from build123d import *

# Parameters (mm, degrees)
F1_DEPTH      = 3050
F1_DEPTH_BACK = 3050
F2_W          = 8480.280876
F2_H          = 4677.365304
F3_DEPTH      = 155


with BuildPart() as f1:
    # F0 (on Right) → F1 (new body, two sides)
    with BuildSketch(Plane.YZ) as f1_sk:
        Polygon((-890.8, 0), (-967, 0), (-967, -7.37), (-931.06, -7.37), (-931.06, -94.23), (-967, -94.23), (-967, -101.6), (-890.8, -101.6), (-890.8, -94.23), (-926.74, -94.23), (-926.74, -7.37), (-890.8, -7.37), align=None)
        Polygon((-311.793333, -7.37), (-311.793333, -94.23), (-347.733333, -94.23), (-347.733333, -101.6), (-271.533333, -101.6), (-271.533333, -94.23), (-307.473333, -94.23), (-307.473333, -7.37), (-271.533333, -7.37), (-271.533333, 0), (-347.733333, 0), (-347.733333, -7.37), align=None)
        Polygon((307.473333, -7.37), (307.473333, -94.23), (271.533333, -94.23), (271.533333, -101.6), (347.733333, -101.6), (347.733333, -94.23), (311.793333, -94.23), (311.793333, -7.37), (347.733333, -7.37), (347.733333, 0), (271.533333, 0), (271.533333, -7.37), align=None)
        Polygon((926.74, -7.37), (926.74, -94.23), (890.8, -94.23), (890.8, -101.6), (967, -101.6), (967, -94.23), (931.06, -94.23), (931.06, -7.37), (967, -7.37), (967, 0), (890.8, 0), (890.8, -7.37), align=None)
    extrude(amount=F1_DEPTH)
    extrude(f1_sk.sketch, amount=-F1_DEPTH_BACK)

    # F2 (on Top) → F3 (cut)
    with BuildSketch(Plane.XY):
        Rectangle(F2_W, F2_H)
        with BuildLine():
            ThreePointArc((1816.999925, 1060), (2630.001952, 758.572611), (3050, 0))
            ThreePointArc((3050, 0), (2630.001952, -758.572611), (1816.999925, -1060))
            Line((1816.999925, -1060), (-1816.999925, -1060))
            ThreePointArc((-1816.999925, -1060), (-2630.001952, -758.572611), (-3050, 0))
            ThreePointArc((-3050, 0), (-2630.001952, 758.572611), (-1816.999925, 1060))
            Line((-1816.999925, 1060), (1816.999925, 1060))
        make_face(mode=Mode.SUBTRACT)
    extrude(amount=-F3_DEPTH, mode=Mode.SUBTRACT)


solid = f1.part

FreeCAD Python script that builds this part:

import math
import FreeCAD as App
import Part
import Sketcher

V = App.Vector
Q = App.Units.Quantity

doc = App.newDocument("Part")
params = doc.addObject("Spreadsheet::Sheet", "Params")
for row, (alias, value) in enumerate([
    ("sketch1_width", "76.2 mm"),
    ("sketch1_width2", "35.94 mm"),
    ("sketch1_height", "7.37 mm"),
    ("sketch1_height2", "86.86 mm"),
    ("pad1_length", "3050 mm"),
    ("pad1_length2", "3050 mm"),
    ("pocket1_length", "155 mm"),
], start=1):
    params.set(f"A{row}", alias)
    params.set(f"B{row}", "=" + value)
    params.setAlias(f"B{row}", alias)

body = doc.addObject("PartDesign::Body", "Body")
body.AllowCompound = True

sketch1 = body.newObject("Sketcher::SketchObject", "Sketch")
sketch1.AttachmentSupport = (doc.getObject("YZ_Plane"), [""])
sketch1.MapMode = "FlatFace"
sketch1.addGeometry([
    Part.LineSegment(V(-890.8, 0, 0), V(-967, 0, 0)),
    Part.LineSegment(V(-967, 0, 0), V(-967, -7.37, 0)),
    Part.LineSegment(V(-967, -7.37, 0), V(-931.06, -7.37, 0)),
    Part.LineSegment(V(-931.06, -7.37, 0), V(-931.06, -94.23, 0)),
    Part.LineSegment(V(-931.06, -94.23, 0), V(-967, -94.23, 0)),
    Part.LineSegment(V(-967, -94.23, 0), V(-967, -101.6, 0)),
    Part.LineSegment(V(-967, -101.6, 0), V(-890.8, -101.6, 0)),
    Part.LineSegment(V(-890.8, -101.6, 0), V(-890.8, -94.23, 0)),
    Part.LineSegment(V(-890.8, -94.23, 0), V(-926.74, -94.23, 0)),
    Part.LineSegment(V(-926.74, -94.23, 0), V(-926.74, -7.37, 0)),
    Part.LineSegment(V(-926.74, -7.37, 0), V(-890.8, -7.37, 0)),
    Part.LineSegment(V(-890.8, -7.37, 0), V(-890.8, 0, 0)),
    Part.LineSegment(V(-311.793333, -7.37, 0), V(-311.793333, -94.23, 0)),
    Part.LineSegment(V(-311.793333, -94.23, 0), V(-347.733333, -94.23, 0)),
    Part.LineSegment(V(-347.733333, -94.23, 0), V(-347.733333, -101.6, 0)),
    Part.LineSegment(V(-347.733333, -101.6, 0), V(-271.533333, -101.6, 0)),
    Part.LineSegment(V(-271.533333, -101.6, 0), V(-271.533333, -94.23, 0)),
    Part.LineSegment(V(-271.533333, -94.23, 0), V(-307.473333, -94.23, 0)),
    Part.LineSegment(V(-307.473333, -94.23, 0), V(-307.473333, -7.37, 0)),
    Part.LineSegment(V(-307.473333, -7.37, 0), V(-271.533333, -7.37, 0)),
    Part.LineSegment(V(-271.533333, -7.37, 0), V(-271.533333, 0, 0)),
    Part.LineSegment(V(-271.533333, 0, 0), V(-347.733333, 0, 0)),
    Part.LineSegment(V(-347.733333, 0, 0), V(-347.733333, -7.37, 0)),
    Part.LineSegment(V(-347.733333, -7.37, 0), V(-311.793333, -7.37, 0)),
    Part.LineSegment(V(307.473333, -7.37, 0), V(307.473333, -94.23, 0)),
    Part.LineSegment(V(307.473333, -94.23, 0), V(271.533333, -94.23, 0)),
    Part.LineSegment(V(271.533333, -94.23, 0), V(271.533333, -101.6, 0)),
    Part.LineSegment(V(271.533333, -101.6, 0), V(347.733333, -101.6, 0)),
    Part.LineSegment(V(347.733333, -101.6, 0), V(347.733333, -94.23, 0)),
    Part.LineSegment(V(347.733333, -94.23, 0), V(311.793333, -94.23, 0)),
    Part.LineSegment(V(311.793333, -94.23, 0), V(311.793333, -7.37, 0)),
    Part.LineSegment(V(311.793333, -7.37, 0), V(347.733333, -7.37, 0)),
    Part.LineSegment(V(347.733333, -7.37, 0), V(347.733333, 0, 0)),
    Part.LineSegment(V(347.733333, 0, 0), V(271.533333, 0, 0)),
    Part.LineSegment(V(271.533333, 0, 0), V(271.533333, -7.37, 0)),
    Part.LineSegment(V(271.533333, -7.37, 0), V(307.473333, -7.37, 0)),
    Part.LineSegment(V(926.74, -7.37, 0), V(926.74, -94.23, 0)),
    Part.LineSegment(V(926.74, -94.23, 0), V(890.8, -94.23, 0)),
    Part.LineSegment(V(890.8, -94.23, 0), V(890.8, -101.6, 0)),
    Part.LineSegment(V(890.8, -101.6, 0), V(967, -101.6, 0)),
    Part.LineSegment(V(967, -101.6, 0), V(967, -94.23, 0)),
    Part.LineSegment(V(967, -94.23, 0), V(931.06, -94.23, 0)),
    Part.LineSegment(V(931.06, -94.23, 0), V(931.06, -7.37, 0)),
    Part.LineSegment(V(931.06, -7.37, 0), V(967, -7.37, 0)),
    Part.LineSegment(V(967, -7.37, 0), V(967, 0, 0)),
    Part.LineSegment(V(967, 0, 0), V(890.8, 0, 0)),
    Part.LineSegment(V(890.8, 0, 0), V(890.8, -7.37, 0)),
    Part.LineSegment(V(890.8, -7.37, 0), V(926.74, -7.37, 0)),
], False)
sketch1.addConstraint([
    Sketcher.Constraint("Coincident", 0, 2, 1, 1),
    Sketcher.Constraint("Coincident", 1, 2, 2, 1),
    Sketcher.Constraint("Coincident", 2, 2, 3, 1),
    Sketcher.Constraint("Coincident", 3, 2, 4, 1),
    Sketcher.Constraint("Coincident", 4, 2, 5, 1),
    Sketcher.Constraint("Coincident", 5, 2, 6, 1),
    Sketcher.Constraint("Coincident", 6, 2, 7, 1),
    Sketcher.Constraint("Coincident", 7, 2, 8, 1),
    Sketcher.Constraint("Coincident", 8, 2, 9, 1),
    Sketcher.Constraint("Coincident", 9, 2, 10, 1),
    Sketcher.Constraint("Coincident", 10, 2, 11, 1),
    Sketcher.Constraint("Coincident", 11, 2, 0, 1),
    Sketcher.Constraint("Coincident", 12, 2, 13, 1),
    Sketcher.Constraint("Coincident", 13, 2, 14, 1),
    Sketcher.Constraint("Coincident", 14, 2, 15, 1),
    Sketcher.Constraint("Coincident", 15, 2, 16, 1),
    Sketcher.Constraint("Coincident", 16, 2, 17, 1),
    Sketcher.Constraint("Coincident", 17, 2, 18, 1),
    Sketcher.Constraint("Coincident", 18, 2, 19, 1),
    Sketcher.Constraint("Coincident", 19, 2, 20, 1),
    Sketcher.Constraint("Coincident", 20, 2, 21, 1),
    Sketcher.Constraint("Coincident", 21, 2, 22, 1),
    Sketcher.Constraint("Coincident", 22, 2, 23, 1),
    Sketcher.Constraint("Coincident", 23, 2, 12, 1),
    Sketcher.Constraint("Coincident", 24, 2, 25, 1),
    Sketcher.Constraint("Coincident", 25, 2, 26, 1),
    Sketcher.Constraint("Coincident", 26, 2, 27, 1),
    Sketcher.Constraint("Coincident", 27, 2, 28, 1),
    Sketcher.Constraint("Coincident", 28, 2, 29, 1),
    Sketcher.Constraint("Coincident", 29, 2, 30, 1),
    Sketcher.Constraint("Coincident", 30, 2, 31, 1),
    Sketcher.Constraint("Coincident", 31, 2, 32, 1),
    Sketcher.Constraint("Coincident", 32, 2, 33, 1),
    Sketcher.Constraint("Coincident", 33, 2, 34, 1),
    Sketcher.Constraint("Coincident", 34, 2, 35, 1),
    Sketcher.Constraint("Coincident", 35, 2, 24, 1),
    Sketcher.Constraint("Coincident", 36, 2, 37, 1),
    Sketcher.Constraint("Coincident", 37, 2, 38, 1),
    Sketcher.Constraint("Coincident", 38, 2, 39, 1),
    Sketcher.Constraint("Coincident", 39, 2, 40, 1),
    Sketcher.Constraint("Coincident", 40, 2, 41, 1),
    Sketcher.Constraint("Coincident", 41, 2, 42, 1),
    Sketcher.Constraint("Coincident", 42, 2, 43, 1),
    Sketcher.Constraint("Coincident", 43, 2, 44, 1),
    Sketcher.Constraint("Coincident", 44, 2, 45, 1),
    Sketcher.Constraint("Coincident", 45, 2, 46, 1),
    Sketcher.Constraint("Coincident", 46, 2, 47, 1),
    Sketcher.Constraint("Coincident", 47, 2, 36, 1),
    Sketcher.Constraint("Horizontal", 0),
    Sketcher.Constraint("Vertical", 1),
    Sketcher.Constraint("Horizontal", 2),
    Sketcher.Constraint("Vertical", 3),
    Sketcher.Constraint("Horizontal", 4),
    Sketcher.Constraint("Vertical", 5),
    Sketcher.Constraint("Horizontal", 6),
    Sketcher.Constraint("Vertical", 7),
    Sketcher.Constraint("Horizontal", 8),
    Sketcher.Constraint("Vertical", 9),
    Sketcher.Constraint("Horizontal", 10),
    Sketcher.Constraint("Vertical", 11),
    Sketcher.Constraint("Vertical", 12),
    Sketcher.Constraint("Horizontal", 13),
    Sketcher.Constraint("Vertical", 14),
    Sketcher.Constraint("Horizontal", 15),
    Sketcher.Constraint("Vertical", 16),
    Sketcher.Constraint("Horizontal", 17),
    Sketcher.Constraint("Vertical", 18),
    Sketcher.Constraint("Horizontal", 19),
    Sketcher.Constraint("Vertical", 20),
    Sketcher.Constraint("Horizontal", 21),
    Sketcher.Constraint("Vertical", 22),
    Sketcher.Constraint("Horizontal", 23),
    Sketcher.Constraint("Vertical", 24),
    Sketcher.Constraint("Horizontal", 25),
    Sketcher.Constraint("Vertical", 26),
    Sketcher.Constraint("Horizontal", 27),
    Sketcher.Constraint("Vertical", 28),
    Sketcher.Constraint("Horizontal", 29),
    Sketcher.Constraint("Vertical", 30),
    Sketcher.Constraint("Horizontal", 31),
    Sketcher.Constraint("Vertical", 32),
    Sketcher.Constraint("Horizontal", 33),
    Sketcher.Constraint("Vertical", 34),
    Sketcher.Constraint("Horizontal", 35),
    Sketcher.Constraint("Vertical", 36),
    Sketcher.Constraint("Horizontal", 37),
    Sketcher.Constraint("Vertical", 38),
    Sketcher.Constraint("Horizontal", 39),
    Sketcher.Constraint("Vertical", 40),
    Sketcher.Constraint("Horizontal", 41),
    Sketcher.Constraint("Vertical", 42),
    Sketcher.Constraint("Horizontal", 43),
    Sketcher.Constraint("Vertical", 44),
    Sketcher.Constraint("Horizontal", 45),
    Sketcher.Constraint("Vertical", 46),
    Sketcher.Constraint("Horizontal", 47),
    Sketcher.Constraint("Symmetric", 21, 2, 32, 2, -1, 1),
    Sketcher.Constraint("Symmetric", 0, 2, 44, 2, -1, 1),
    Sketcher.Constraint("Symmetric", 17, 2, 24, 2, -2),
    Sketcher.Constraint("Symmetric", 15, 2, 26, 2, -2),
    Sketcher.Constraint("Symmetric", 13, 2, 28, 2, -2),
    Sketcher.Constraint("Symmetric", 23, 2, 30, 2, -2),
    Sketcher.Constraint("Symmetric", 20, 2, 33, 2, -2),
    Sketcher.Constraint("Symmetric", 8, 2, 36, 2, -2),
    Sketcher.Constraint("Symmetric", 6, 2, 38, 2, -2),
    Sketcher.Constraint("Symmetric", 4, 2, 40, 2, -2),
    Sketcher.Constraint("Symmetric", 2, 2, 42, 2, -2),
    Sketcher.Constraint("Symmetric", 11, 2, 45, 2, -2),
    Sketcher.Constraint("Horizontal", 4, 2, 7, 2),
    Sketcher.Constraint("Horizontal", 2, 2, 9, 2),
    Sketcher.Constraint("Horizontal", 8, 2, 12, 2),
    Sketcher.Constraint("Horizontal", 6, 2, 14, 2),
    Sketcher.Constraint("Horizontal", 13, 2, 16, 2),
    Sketcher.Constraint("Horizontal", 10, 2, 18, 2),
    Sketcher.Constraint("Horizontal", 19, 2, 22, 2),
    Sketcher.Constraint("Horizontal", 31, 2, 34, 2),
    Sketcher.Constraint("Horizontal", 43, 2, 46, 2),
    Sketcher.Constraint("Vertical", 1, 2, 4, 2),
    Sketcher.Constraint("Vertical", 7, 2, 10, 2),
    Sketcher.Constraint("Vertical", 16, 2, 19, 2),
    Sketcher.Constraint("Vertical", 14, 2, 21, 2),
    Sketcher.Constraint("Equal", 4, 8),
    Sketcher.Constraint("Equal", 10, 13),
    Sketcher.Constraint("Equal", 6, 15),
    Sketcher.Constraint("Equal", 13, 17),
    Sketcher.Constraint("Equal", 1, 5),
    Sketcher.Constraint("DistanceX", 0, 2, 0, 1, Q("76.2 mm")),
    Sketcher.Constraint("DistanceX", 0, 2, -1, 1, Q("967 mm")),
    Sketcher.Constraint("DistanceX", 2, 1, 2, 2, Q("35.94 mm")),
    Sketcher.Constraint("DistanceY", 1, 2, 1, 1, Q("7.37 mm")),
    Sketcher.Constraint("DistanceY", 3, 2, 3, 1, Q("86.86 mm")),
    Sketcher.Constraint("DistanceX", 12, 2, -1, 1, Q("311.793333 mm")),
])
sketch1.setExpression("Constraints[126]", "Params.sketch1_width")
sketch1.setExpression("Constraints[128]", "Params.sketch1_width2")
sketch1.setExpression("Constraints[129]", "Params.sketch1_height")
sketch1.setExpression("Constraints[130]", "Params.sketch1_height2")
pad1 = body.newObject("PartDesign::Pad", "Pad")
pad1.Profile = sketch1
pad1.Type = "TwoLengths"
pad1.setExpression("Length", "Params.pad1_length")
pad1.setExpression("Length2", "Params.pad1_length2")

sketch2 = body.newObject("Sketcher::SketchObject", "Sketch001")
sketch2.AttachmentSupport = (doc.getObject("XY_Plane"), [""])
sketch2.MapMode = "FlatFace"
sketch2.addGeometry([
    Part.LineSegment(V(-4240.140438, 2338.682652, 0), V(-4240.140438, -2338.682652, 0)),
    Part.LineSegment(V(-4240.140438, -2338.682652, 0), V(4240.140438, -2338.682652, 0)),
    Part.LineSegment(V(4240.140438, -2338.682652, 0), V(4240.140438, 2338.682652, 0)),
    Part.LineSegment(V(4240.140438, 2338.682652, 0), V(-4240.140438, 2338.682652, 0)),
    Part.LineSegment(V(-1816.999925, 1060, 0), V(1816.999925, 1060, 0)),
    Part.ArcOfCircle(Part.Circle(V(1816.999924, -187.117541, 0), V(0, 0, 1), 1247.117541), math.radians(8.629246), math.radians(90)),
    Part.ArcOfCircle(Part.Circle(V(1816.999924, 187.117541, 0), V(0, 0, 1), 1247.117541), math.radians(-90), math.radians(-8.629246)),
    Part.LineSegment(V(1816.999925, -1060, 0), V(-1816.999925, -1060, 0)),
    Part.ArcOfCircle(Part.Circle(V(-1816.999924, 187.117541, 0), V(0, 0, 1), 1247.117541), math.radians(-171.370754), math.radians(-90)),
    Part.ArcOfCircle(Part.Circle(V(-1816.999924, -187.117541, 0), V(0, 0, 1), 1247.117541), math.radians(90), math.radians(171.370754)),
], False)
sketch2.addConstraint([
    Sketcher.Constraint("Coincident", 0, 2, 1, 1),
    Sketcher.Constraint("Coincident", 1, 2, 2, 1),
    Sketcher.Constraint("Coincident", 2, 2, 3, 1),
    Sketcher.Constraint("Coincident", 3, 2, 0, 1),
    Sketcher.Constraint("Coincident", 4, 2, 5, 2),
    Sketcher.Constraint("Coincident", 5, 1, 6, 2),
    Sketcher.Constraint("Coincident", 6, 1, 7, 1),
    Sketcher.Constraint("Coincident", 7, 2, 8, 2),
    Sketcher.Constraint("Coincident", 8, 1, 9, 2),
    Sketcher.Constraint("Coincident", 9, 1, 4, 1),
    Sketcher.Constraint("Vertical", 0),
    Sketcher.Constraint("Horizontal", 1),
    Sketcher.Constraint("Vertical", 2),
    Sketcher.Constraint("Horizontal", 3),
    Sketcher.Constraint("Horizontal", 4),
    Sketcher.Constraint("Horizontal", 7),
    Sketcher.Constraint("Equal", 5, 6),
    Sketcher.Constraint("Equal", 6, 8),
    Sketcher.Constraint("Equal", 8, 9),
    Sketcher.Constraint("Symmetric", 5, 3, 8, 3, -1, 1),
    Sketcher.Constraint("Symmetric", 0, 2, 2, 2, -1, 1),
    Sketcher.Constraint("Symmetric", 5, 1, 8, 1, -2),
    Sketcher.Constraint("Vertical", 6, 3, 4, 2),
    Sketcher.Constraint("Vertical", 9, 3, 7, 2),
    Sketcher.Constraint("Equal", 4, 7),
    Sketcher.Constraint("DistanceY", -1, 1, 4, 2, Q("1060 mm")),
    Sketcher.Constraint("DistanceX", -1, 1, 5, 1, Q("3050 mm")),
    Sketcher.Constraint("Radius", 5, Q("1247.117541 mm")),
    Sketcher.Constraint("DistanceX", 4, 1, 4, 2, Q("3633.99985 mm")),
    Sketcher.Constraint("DistanceX", 1, 1, 1, 2, Q("8480.280876 mm")),
    Sketcher.Constraint("DistanceY", 0, 2, 0, 1, Q("4677.365304 mm")),
])
pocket1 = body.newObject("PartDesign::Pocket", "Pocket")
pocket1.Profile = sketch2
pocket1.setExpression("Length", "Params.pocket1_length")

doc.recompute()
